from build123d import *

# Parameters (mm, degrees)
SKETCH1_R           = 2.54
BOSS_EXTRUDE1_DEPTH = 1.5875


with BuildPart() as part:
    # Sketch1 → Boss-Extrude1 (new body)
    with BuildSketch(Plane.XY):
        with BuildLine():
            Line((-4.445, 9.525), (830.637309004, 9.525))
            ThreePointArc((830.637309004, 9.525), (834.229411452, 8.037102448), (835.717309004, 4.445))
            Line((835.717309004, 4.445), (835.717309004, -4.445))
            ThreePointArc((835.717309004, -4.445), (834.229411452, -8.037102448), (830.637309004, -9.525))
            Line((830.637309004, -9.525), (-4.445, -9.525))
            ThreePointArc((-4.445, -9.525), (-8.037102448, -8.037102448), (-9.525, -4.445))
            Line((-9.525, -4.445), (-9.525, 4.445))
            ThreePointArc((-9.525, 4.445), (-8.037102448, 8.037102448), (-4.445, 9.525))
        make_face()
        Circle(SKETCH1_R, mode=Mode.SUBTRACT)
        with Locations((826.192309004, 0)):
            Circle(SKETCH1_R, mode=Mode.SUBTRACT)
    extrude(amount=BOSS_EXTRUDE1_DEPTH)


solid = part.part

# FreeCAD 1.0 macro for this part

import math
import FreeCAD as App
import Part
import Sketcher
from FreeCAD import Vector
Q = App.Units.Quantity

doc = App.newDocument("Part")
params = doc.addObject("Spreadsheet::Sheet", "Params")
for row, (alias, value) in enumerate([
    ("sketch1_diameter", "0.2 in"),
    ("sketch1_radius", "0.2 in"),
    ("sketch1_height", "0.35 in"),
    ("pad1_length", "0.0625 in"),
], start=1):
    params.set(f"A{row}", alias)
    params.set(f"B{row}", "=" + value)
    params.setAlias(f"B{row}", alias)

body = doc.addObject("PartDesign::Body", "Body")

# Sketch on XY plane
sketch1 = body.newObject("Sketcher::SketchObject", "Sketch")
sketch1.AttachmentSupport = (doc.getObject("XY_Plane"), [""])
sketch1.MapMode = "FlatFace"
sketch1.addGeometry([
    Part.LineSegment(Vector(830.6, 9.5, 0), Vector(-4.4, 9.5, 0)),  # 0
    Part.ArcOfCircle(Part.Circle(Vector(-4.4, 4.4, 0), Vector(0, 0, 1), 5.1), math.radians(90), math.radians(180)),  # 1
    Part.LineSegment(Vector(-9.5, 4.4, 0), Vector(-9.5, -4.4, 0)),  # 2
    Part.ArcOfCircle(Part.Circle(Vector(-4.4, -4.4, 0), Vector(0, 0, 1), 5.1), math.radians(-180), math.radians(-90)),  # 3
    Part.LineSegment(Vector(-4.4, -9.5, 0), Vector(830.6, -9.5, 0)),  # 4
    Part.ArcOfCircle(Part.Circle(Vector(830.6, -4.4, 0), Vector(0, 0, 1), 5.1), math.radians(-90), math.radians(0)),  # 5
    Part.LineSegment(Vector(835.7, -4.4, 0), Vector(835.7, 4.4, 0)),  # 6
    Part.ArcOfCircle(Part.Circle(Vector(830.6, 4.4, 0), Vector(0, 0, 1), 5.1), math.radians(0), math.radians(90)),  # 7
    Part.Circle(Vector(826.2, 0, 0), Vector(0, 0, 1), 2.5),  # 8
    Part.Circle(Vector(0, 0, 0), Vector(0, 0, 1), 2.5),  # 9
], False)
sketch1.addConstraint([
    Sketcher.Constraint("Tangent", 0, 2, 1, 1),
    Sketcher.Constraint("Tangent", 1, 2, 2, 1),
    Sketcher.Constraint("Tangent", 2, 2, 3, 1),
    Sketcher.Constraint("Tangent", 3, 2, 4, 1),
    Sketcher.Constraint("Tangent", 4, 2, 5, 1),
    Sketcher.Constraint("Tangent", 5, 2, 6, 1),
    Sketcher.Constraint("Tangent", 6, 2, 7, 1),
    Sketcher.Constraint("Tangent", 7, 2, 0, 1),
    Sketcher.Constraint("Horizontal", 0),
    Sketcher.Constraint("Vertical", 2),
    Sketcher.Constraint("Horizontal", 4),
    Sketcher.Constraint("Vertical", 6),
    Sketcher.Constraint("Coincident", 9, 3, -1, 1),
    Sketcher.Constraint("Equal", 1, 3),
    Sketcher.Constraint("Equal", 3, 5),
    Sketcher.Constraint("Equal", 5, 7),
    Sketcher.Constraint("Equal", 8, 9),
    Sketcher.Constraint("PointOnObject", 8, 3, -1),
    Sketcher.Constraint("Diameter", 8, Q("0.2 in")),
    Sketcher.Constraint("Radius", 1, Q("0.2 in")),
    Sketcher.Constraint("DistanceY", 2, 2, 2, 1, Q("0.35 in")),
    Sketcher.Constraint("DistanceX", 1, 3, -1, 1, Q("0.175 in")),
    Sketcher.Constraint("DistanceY", -1, 1, 1, 3, Q("0.175 in")),
    Sketcher.Constraint("DistanceX", 8, 3, 5, 3, Q("0.175 in")),
    Sketcher.Constraint("DistanceX", 0, 2, 0, 1, 835.082309),
])
sketch1.setExpression("Constraints[18]", "Params.sketch1_diameter")
sketch1.setExpression("Constraints[19]", "Params.sketch1_radius")
sketch1.setExpression("Constraints[20]", "Params.sketch1_height")
pad1 = body.newObject("PartDesign::Pad", "Pad")
pad1.Profile = sketch1
pad1.setExpression("Length", "Params.pad1_length")

doc.recompute()
